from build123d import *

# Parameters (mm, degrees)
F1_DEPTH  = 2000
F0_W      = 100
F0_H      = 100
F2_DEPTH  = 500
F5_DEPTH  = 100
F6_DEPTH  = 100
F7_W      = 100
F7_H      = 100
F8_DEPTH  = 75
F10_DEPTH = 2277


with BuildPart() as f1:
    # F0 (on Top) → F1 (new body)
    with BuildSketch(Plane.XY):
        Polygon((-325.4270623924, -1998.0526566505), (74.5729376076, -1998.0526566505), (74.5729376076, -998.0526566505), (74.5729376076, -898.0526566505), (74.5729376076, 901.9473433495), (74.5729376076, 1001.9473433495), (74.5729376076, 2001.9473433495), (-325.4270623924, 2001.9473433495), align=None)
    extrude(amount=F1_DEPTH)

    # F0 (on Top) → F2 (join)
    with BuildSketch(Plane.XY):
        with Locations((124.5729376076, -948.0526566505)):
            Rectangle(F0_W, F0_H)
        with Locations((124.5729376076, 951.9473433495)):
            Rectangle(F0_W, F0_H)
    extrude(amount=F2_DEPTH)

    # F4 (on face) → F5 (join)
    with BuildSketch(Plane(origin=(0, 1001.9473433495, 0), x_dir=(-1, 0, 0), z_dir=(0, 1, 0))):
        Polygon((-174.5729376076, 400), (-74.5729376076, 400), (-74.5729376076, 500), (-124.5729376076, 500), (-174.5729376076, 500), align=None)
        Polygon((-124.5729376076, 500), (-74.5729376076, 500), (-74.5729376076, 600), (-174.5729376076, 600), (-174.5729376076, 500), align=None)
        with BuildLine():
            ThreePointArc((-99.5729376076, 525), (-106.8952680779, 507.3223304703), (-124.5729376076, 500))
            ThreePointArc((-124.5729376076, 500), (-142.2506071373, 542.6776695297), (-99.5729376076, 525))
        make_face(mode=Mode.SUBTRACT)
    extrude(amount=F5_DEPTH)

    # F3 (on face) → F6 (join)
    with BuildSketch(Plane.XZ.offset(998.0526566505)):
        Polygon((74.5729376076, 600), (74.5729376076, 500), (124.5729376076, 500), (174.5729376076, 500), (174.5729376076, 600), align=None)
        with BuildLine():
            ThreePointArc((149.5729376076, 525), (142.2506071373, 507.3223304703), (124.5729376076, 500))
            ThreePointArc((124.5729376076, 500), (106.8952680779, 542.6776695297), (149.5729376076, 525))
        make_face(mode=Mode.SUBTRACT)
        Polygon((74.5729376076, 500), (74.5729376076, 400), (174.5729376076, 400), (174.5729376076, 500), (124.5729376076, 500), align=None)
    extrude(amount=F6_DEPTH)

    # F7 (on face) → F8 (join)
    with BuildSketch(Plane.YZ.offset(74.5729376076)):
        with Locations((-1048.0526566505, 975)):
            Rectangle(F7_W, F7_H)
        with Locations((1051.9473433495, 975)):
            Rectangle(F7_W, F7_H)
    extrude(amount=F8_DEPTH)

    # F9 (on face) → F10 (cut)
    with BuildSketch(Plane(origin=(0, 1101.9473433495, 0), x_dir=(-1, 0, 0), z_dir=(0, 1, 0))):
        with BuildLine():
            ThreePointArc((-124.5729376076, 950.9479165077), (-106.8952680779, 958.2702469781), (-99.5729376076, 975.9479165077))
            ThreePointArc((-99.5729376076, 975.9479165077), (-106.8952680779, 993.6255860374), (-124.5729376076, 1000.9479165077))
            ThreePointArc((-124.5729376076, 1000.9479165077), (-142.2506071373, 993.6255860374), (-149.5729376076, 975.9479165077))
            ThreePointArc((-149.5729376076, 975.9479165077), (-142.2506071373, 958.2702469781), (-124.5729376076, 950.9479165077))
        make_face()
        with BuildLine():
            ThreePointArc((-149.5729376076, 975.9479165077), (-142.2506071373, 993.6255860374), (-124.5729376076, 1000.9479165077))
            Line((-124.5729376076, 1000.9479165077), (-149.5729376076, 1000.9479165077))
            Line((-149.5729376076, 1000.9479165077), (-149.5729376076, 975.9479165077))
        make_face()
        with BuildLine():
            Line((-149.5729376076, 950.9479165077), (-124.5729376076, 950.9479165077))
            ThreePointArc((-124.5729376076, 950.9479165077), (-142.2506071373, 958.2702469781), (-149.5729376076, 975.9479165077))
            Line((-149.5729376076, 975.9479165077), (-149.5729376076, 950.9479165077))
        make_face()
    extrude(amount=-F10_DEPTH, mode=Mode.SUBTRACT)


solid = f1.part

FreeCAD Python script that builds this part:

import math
import FreeCAD as App
import Part
import Sketcher
Q = App.Units.Quantity


def add_polygon(sketch, points):
    """Adds a closed chain of lines whose ends are joined by coincident constraints."""
    first, n = sketch.GeometryCount, len(points)
    for a, b in zip(points, points[1:] + points[:1]):
        sketch.addGeometry(Part.LineSegment(App.Vector(*a, 0), App.Vector(*b, 0)), False)
    for i in range(n):
        sketch.addConstraint(Sketcher.Constraint("Coincident", first + i, 2, first + (i + 1) % n, 1))

doc = App.newDocument("Part")
body = doc.addObject("PartDesign::Body", "Body")

sketch1 = doc.addObject("Sketcher::SketchObject", "Sketch")
body.addObject(sketch1)
sketch1.AttachmentSupport = (doc.XY_Plane, [""])
sketch1.MapMode = "FlatFace"
add_polygon(sketch1, [(-325, -1998), (75, -1998), (75, 2002), (-325, 2002)])
sketch1.addConstraint([
    Sketcher.Constraint("Horizontal", 0),
    Sketcher.Constraint("Vertical", 1),
    Sketcher.Constraint("Horizontal", 2),
    Sketcher.Constraint("Vertical", 3),
    Sketcher.Constraint("DistanceX", 0, 1, 0, 2, Q("400 mm")),
    Sketcher.Constraint("DistanceY", 1, 1, 1, 2, Q("4000 mm")),
    Sketcher.Constraint("DistanceX", -1, 1, 0, 2, Q("74.572938 mm")),
    Sketcher.Constraint("DistanceY", 0, 2, -1, 1, Q("1998.052657 mm")),
])
pad1 = doc.addObject("PartDesign::Pad", "Pad")
body.addObject(pad1)
pad1.Profile = sketch1
pad1.Length = 2000

sketch2 = doc.addObject("Sketcher::SketchObject", "Sketch001")
body.addObject(sketch2)
sketch2.AttachmentSupport = (doc.XY_Plane, [""])
sketch2.MapMode = "FlatFace"
add_polygon(sketch2, [(75, -898), (75, -998), (175, -998), (175, -898)])
add_polygon(sketch2, [(75, 1002), (75, 902), (175, 902), (175, 1002)])
sketch2.addConstraint([
    Sketcher.Constraint("Vertical", 0),
    Sketcher.Constraint("Horizontal", 1),
    Sketcher.Constraint("Vertical", 2),
    Sketcher.Constraint("Horizontal", 3),
    Sketcher.Constraint("Vertical", 4),
    Sketcher.Constraint("Horizontal", 5),
    Sketcher.Constraint("Vertical", 6),
    Sketcher.Constraint("Horizontal", 7),
    Sketcher.Constraint("Vertical", 3, 2, 4, 2),
    Sketcher.Constraint("Vertical", 2, 2, 5, 2),
    Sketcher.Constraint("Equal", 7, 0),
    Sketcher.Constraint("Equal", 2, 4),
    Sketcher.Constraint("DistanceX", 1, 1, 1, 2, Q("100 mm")),
    Sketcher.Constraint("DistanceY", 3, 2, 4, 2, Q("1800 mm")),
    Sketcher.Constraint("DistanceX", -1, 1, 0, 2, Q("74.572938 mm")),
    Sketcher.Constraint("DistanceY", 0, 2, -1, 1, Q("998.052657 mm")),
])
pad2 = doc.addObject("PartDesign::Pad", "Pad001")
body.addObject(pad2)
pad2.Profile = sketch2
pad2.Length = 500

sketch3 = doc.addObject("Sketcher::SketchObject", "Sketch002")
body.addObject(sketch3)
sketch3.AttachmentSupport = (doc.XZ_Plane, [""])
sketch3.MapMode = "FlatFace"
sketch3.AttachmentOffset = App.Placement(App.Vector(0, 0, -1001.947343), App.Rotation())
add_polygon(sketch3, [(175, 400), (75, 400), (75, 600), (175, 600)])
sketch3.addGeometry(Part.ArcOfCircle(Part.Circle(App.Vector(125, 525, 0), App.Vector(0, 0, 1), 25), math.radians(-90), math.radians(180)), False)
sketch3.addGeometry(Part.ArcOfCircle(Part.Circle(App.Vector(125, 525, 0), App.Vector(0, 0, 1), 25), math.radians(180), math.radians(270)), False)
sketch3.addConstraint([
    Sketcher.Constraint("Tangent", 4, 1, 5, 2),
    Sketcher.Constraint("Coincident", 5, 1, 4, 2),
    Sketcher.Constraint("Horizontal", 0),
    Sketcher.Constraint("Vertical", 1),
    Sketcher.Constraint("Horizontal", 2),
    Sketcher.Constraint("Vertical", 3),
    Sketcher.Constraint("Horizontal", 4, 3, 5, 1),
    Sketcher.Constraint("Vertical", 5, 3, 4, 1),
    Sketcher.Constraint("Radius", 4, Q("25 mm")),
    Sketcher.Constraint("DistanceX", 0, 2, 0, 1, Q("100 mm")),
    Sketcher.Constraint("DistanceY", 1, 1, 1, 2, Q("200 mm")),
    Sketcher.Constraint("DistanceY", -1, 1, 4, 3, Q("525 mm")),
    Sketcher.Constraint("DistanceY", -1, 1, 0, 2, Q("400 mm")),
    Sketcher.Constraint("DistanceX", 0, 2, 5, 3, Q("50 mm")),
    Sketcher.Constraint("DistanceX", -1, 1, 4, 3, Q("124.572938 mm")),
])
pad3 = doc.addObject("PartDesign::Pad", "Pad002")
body.addObject(pad3)
pad3.Profile = sketch3
pad3.Length = 100
pad3.Reversed = True

sketch4 = doc.addObject("Sketcher::SketchObject", "Sketch003")
body.addObject(sketch4)
sketch4.AttachmentSupport = (doc.XZ_Plane, [""])
sketch4.MapMode = "FlatFace"
sketch4.AttachmentOffset = App.Placement(App.Vector(0, 0, 998.052657), App.Rotation())
add_polygon(sketch4, [(175, 600), (75, 600), (75, 400), (175, 400)])
sketch4.addGeometry(Part.ArcOfCircle(Part.Circle(App.Vector(125, 525, 0), App.Vector(0, 0, 1), 25), math.radians(-90), math.radians(0)), False)
sketch4.addGeometry(Part.ArcOfCircle(Part.Circle(App.Vector(125, 525, 0), App.Vector(0, 0, 1), 25), math.radians(0), math.radians(270)), False)
sketch4.addConstraint([
    Sketcher.Constraint("Tangent", 4, 1, 5, 2),
    Sketcher.Constraint("Coincident", 5, 1, 4, 2),
    Sketcher.Constraint("Horizontal", 0),
    Sketcher.Constraint("Vertical", 1),
    Sketcher.Constraint("Horizontal", 2),
    Sketcher.Constraint("Vertical", 3),
    Sketcher.Constraint("Horizontal", 4, 3, 5, 1),
    Sketcher.Constraint("Vertical", 5, 3, 4, 1),
    Sketcher.Constraint("Radius", 4, Q("25 mm")),
    Sketcher.Constraint("DistanceX", 0, 2, 0, 1, Q("100 mm")),
    Sketcher.Constraint("DistanceY", 1, 2, 1, 1, Q("200 mm")),
    Sketcher.Constraint("DistanceY", -1, 1, 4, 3, Q("525 mm")),
    Sketcher.Constraint("DistanceY", -1, 1, 0, 2, Q("600 mm")),
    Sketcher.Constraint("DistanceX", 0, 2, 4, 3, Q("50 mm")),
    Sketcher.Constraint("DistanceX", -1, 1, 4, 3, Q("124.572938 mm")),
])
pad4 = doc.addObject("PartDesign::Pad", "Pad003")
body.addObject(pad4)
pad4.Profile = sketch4
pad4.Length = 100

sketch5 = doc.addObject("Sketcher::SketchObject", "Sketch004")
body.addObject(sketch5)
sketch5.AttachmentSupport = (doc.YZ_Plane, [""])
sketch5.MapMode = "FlatFace"
sketch5.AttachmentOffset = App.Placement(App.Vector(0, 0, 74.572938), App.Rotation())
add_polygon(sketch5, [(-1098, 1025), (-1098, 925), (-998, 925), (-998, 1025)])
add_polygon(sketch5, [(1002, 1025), (1002, 925), (1102, 925), (1102, 1025)])
sketch5.addConstraint([
    Sketcher.Constraint("Vertical", 0),
    Sketcher.Constraint("Horizontal", 1),
    Sketcher.Constraint("Vertical", 2),
    Sketcher.Constraint("Horizontal", 3),
    Sketcher.Constraint("Vertical", 4),
    Sketcher.Constraint("Horizontal", 5),
    Sketcher.Constraint("Vertical", 6),
    Sketcher.Constraint("Horizontal", 7),
    Sketcher.Constraint("Horizontal", 1, 2, 4, 2),
    Sketcher.Constraint("Horizontal", 3, 2, 6, 2),
    Sketcher.Constraint("Equal", 3, 5),
    Sketcher.Constraint("Equal", 7, 0),
    Sketcher.Constraint("DistanceX", 1, 1, 1, 2, Q("100 mm")),
    Sketcher.Constraint("DistanceY", -1, 1, 0, 2, Q("925 mm")),
    Sketcher.Constraint("DistanceX", 1, 2, 4, 2, Q("2000 mm")),
    Sketcher.Constraint("DistanceX", 0, 2, -1, 1, Q("1098.052657 mm")),
])
pad5 = doc.addObject("PartDesign::Pad", "Pad004")
body.addObject(pad5)
pad5.Profile = sketch5
pad5.Length = 75

sketch6 = doc.addObject("Sketcher::SketchObject", "Sketch005")
body.addObject(sketch6)
sketch6.AttachmentSupport = (doc.XZ_Plane, [""])
sketch6.MapMode = "FlatFace"
sketch6.AttachmentOffset = App.Placement(App.Vector(0, 0, -1101.947343), App.Rotation())
sketch6.addGeometry([
    Part.ArcOfCircle(Part.Circle(App.Vector(125, 976, 0), App.Vector(0, 0, 1), 25), math.radians(180), math.radians(270)),
    Part.ArcOfCircle(Part.Circle(App.Vector(125, 976, 0), App.Vector(0, 0, 1), 25), math.radians(90), math.radians(180)),
    Part.LineSegment(App.Vector(125, 1001, 0), App.Vector(150, 1001, 0)),
    Part.LineSegment(App.Vector(150, 1001, 0), App.Vector(150, 951, 0)),
    Part.LineSegment(App.Vector(150, 951, 0), App.Vector(125, 951, 0)),
], False)
sketch6.addConstraint([
    Sketcher.Constraint("Tangent", 0, 1, 1, 2),
    Sketcher.Constraint("Tangent", 1, 1, 2, 1),
    Sketcher.Constraint("Coincident", 2, 2, 3, 1),
    Sketcher.Constraint("Coincident", 3, 2, 4, 1),
    Sketcher.Constraint("Tangent", 4, 2, 0, 2),
    Sketcher.Constraint("Horizontal", 2),
    Sketcher.Constraint("Vertical", 3),
    Sketcher.Constraint("Horizontal", 4),
    Sketcher.Constraint("Equal", 0, 1),
    Sketcher.Constraint("Horizontal", 1, 3, 0, 1),
    Sketcher.Constraint("Radius", 0, Q("25 mm")),
    Sketcher.Constraint("DistanceX", 2, 1, 2, 2, Q("25 mm")),
    Sketcher.Constraint("DistanceX", -1, 1, 0, 3, Q("124.572938 mm")),
    Sketcher.Constraint("DistanceY", -1, 1, 0, 3, Q("975.947917 mm")),
])
pocket1 = doc.addObject("PartDesign::Pocket", "Pocket")
body.addObject(pocket1)
pocket1.Profile = sketch6
pocket1.Length = 2277
pocket1.Reversed = True

doc.recompute()
